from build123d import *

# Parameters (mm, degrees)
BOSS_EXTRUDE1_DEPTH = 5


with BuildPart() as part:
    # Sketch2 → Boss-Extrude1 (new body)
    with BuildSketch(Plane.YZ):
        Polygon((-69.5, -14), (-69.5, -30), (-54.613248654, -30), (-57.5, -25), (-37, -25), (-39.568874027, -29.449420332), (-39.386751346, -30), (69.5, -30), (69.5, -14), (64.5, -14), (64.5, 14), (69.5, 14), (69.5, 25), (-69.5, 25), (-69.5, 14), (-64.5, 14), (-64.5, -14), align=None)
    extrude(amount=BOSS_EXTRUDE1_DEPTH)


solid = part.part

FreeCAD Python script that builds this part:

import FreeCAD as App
import Part
import Sketcher

V = App.Vector
Q = App.Units.Quantity

doc = App.newDocument("Part")
body = doc.addObject("PartDesign::Body", "Body")

# Sketch on YZ plane
sketch1 = body.newObject("Sketcher::SketchObject", "Sketch")
sketch1.AttachmentSupport = (doc.getObject("YZ_Plane"), [""])
sketch1.MapMode = "FlatFace"
sketch1.addGeometry(Part.LineSegment(V(-69.5, -14, 0), V(-69.5, -30, 0)), False)
sketch1.addGeometry(Part.LineSegment(V(-69.5, -30, 0), V(-54.613249, -30, 0)), False)
sketch1.addGeometry(Part.LineSegment(V(-54.613249, -30, 0), V(-57.5, -25, 0)), False)
sketch1.addGeometry(Part.LineSegment(V(-57.5, -25, 0), V(-37, -25, 0)), False)
sketch1.addGeometry(Part.LineSegment(V(-37, -25, 0), V(-39.568874, -29.44942, 0)), False)
sketch1.addGeometry(Part.LineSegment(V(-39.568874, -29.44942, 0), V(-39.386751, -30, 0)), False)
sketch1.addGeometry(Part.LineSegment(V(-39.386751, -30, 0), V(69.5, -30, 0)), False)
sketch1.addGeometry(Part.LineSegment(V(69.5, -30, 0), V(69.5, -14, 0)), False)
sketch1.addGeometry(Part.LineSegment(V(69.5, -14, 0), V(64.5, -14, 0)), False)
sketch1.addGeometry(Part.LineSegment(V(64.5, -14, 0), V(64.5, 14, 0)), False)
sketch1.addGeometry(Part.LineSegment(V(64.5, 14, 0), V(69.5, 14, 0)), False)
sketch1.addGeometry(Part.LineSegment(V(69.5, 14, 0), V(69.5, 25, 0)), False)
sketch1.addGeometry(Part.LineSegment(V(69.5, 25, 0), V(-69.5, 25, 0)), False)
sketch1.addGeometry(Part.LineSegment(V(-69.5, 25, 0), V(-69.5, 14, 0)), False)
sketch1.addGeometry(Part.LineSegment(V(-69.5, 14, 0), V(-64.5, 14, 0)), False)
sketch1.addGeometry(Part.LineSegment(V(-64.5, 14, 0), V(-64.5, -14, 0)), False)
sketch1.addGeometry(Part.LineSegment(V(-64.5, -14, 0), V(-69.5, -14, 0)), False)
sketch1.addConstraint(Sketcher.Constraint("Coincident", 0, 2, 1, 1))
sketch1.addConstraint(Sketcher.Constraint("Coincident", 1, 2, 2, 1))
sketch1.addConstraint(Sketcher.Constraint("Coincident", 2, 2, 3, 1))
sketch1.addConstraint(Sketcher.Constraint("Coincident", 3, 2, 4, 1))
sketch1.addConstraint(Sketcher.Constraint("Coincident", 4, 2, 5, 1))
sketch1.addConstraint(Sketcher.Constraint("Coincident", 5, 2, 6, 1))
sketch1.addConstraint(Sketcher.Constraint("Coincident", 6, 2, 7, 1))
sketch1.addConstraint(Sketcher.Constraint("Coincident", 7, 2, 8, 1))
sketch1.addConstraint(Sketcher.Constraint("Coincident", 8, 2, 9, 1))
sketch1.addConstraint(Sketcher.Constraint("Coincident", 9, 2, 10, 1))
sketch1.addConstraint(Sketcher.Constraint("Coincident", 10, 2, 11, 1))
sketch1.addConstraint(Sketcher.Constraint("Coincident", 11, 2, 12, 1))
sketch1.addConstraint(Sketcher.Constraint("Coincident", 12, 2, 13, 1))
sketch1.addConstraint(Sketcher.Constraint("Coincident", 13, 2, 14, 1))
sketch1.addConstraint(Sketcher.Constraint("Coincident", 14, 2, 15, 1))
sketch1.addConstraint(Sketcher.Constraint("Coincident", 15, 2, 16, 1))
sketch1.addConstraint(Sketcher.Constraint("Coincident", 16, 2, 0, 1))
sketch1.addConstraint(Sketcher.Constraint("Vertical", 0))
sketch1.addConstraint(Sketcher.Constraint("Horizontal", 1))
sketch1.addConstraint(Sketcher.Constraint("Horizontal", 3))
sketch1.addConstraint(Sketcher.Constraint("Horizontal", 6))
sketch1.addConstraint(Sketcher.Constraint("Vertical", 7))
sketch1.addConstraint(Sketcher.Constraint("Horizontal", 8))
sketch1.addConstraint(Sketcher.Constraint("Vertical", 9))
sketch1.addConstraint(Sketcher.Constraint("Horizontal", 10))
sketch1.addConstraint(Sketcher.Constraint("Vertical", 11))
sketch1.addConstraint(Sketcher.Constraint("Horizontal", 12))
sketch1.addConstraint(Sketcher.Constraint("Vertical", 13))
sketch1.addConstraint(Sketcher.Constraint("Horizontal", 14))
sketch1.addConstraint(Sketcher.Constraint("Vertical", 15))
sketch1.addConstraint(Sketcher.Constraint("Horizontal", 16))
sketch1.addConstraint(Sketcher.Constraint("Symmetric", 7, 2, 13, 2, -1, 1))
sketch1.addConstraint(Sketcher.Constraint("Symmetric", 9, 2, 15, 2, -1, 1))
sketch1.addConstraint(Sketcher.Constraint("Symmetric", 0, 2, 6, 2, -2))
sketch1.addConstraint(Sketcher.Constraint("Symmetric", 10, 2, 13, 2, -2))
sketch1.addConstraint(Sketcher.Constraint("DistanceX", 8, 2, 8, 1, 5.0))
sketch1.addConstraint(Sketcher.Constraint("DistanceX", 12, 2, 12, 1, 139.0))
sketch1.addConstraint(Sketcher.Constraint("DistanceY", 0, 2, 0, 1, 16.0))
sketch1.addConstraint(Sketcher.Constraint("DistanceY", 9, 1, 9, 2, 28.0))
sketch1.addConstraint(Sketcher.Constraint("DistanceY", 11, 1, 11, 2, 11.0))
sketch1.addConstraint(Sketcher.Constraint("Angle", 2, Q("120 deg")))
sketch1.addConstraint(Sketcher.Constraint("Angle", 4, Q("-120 deg")))
sketch1.addConstraint(Sketcher.Constraint("DistanceX", 3, 1, 3, 2, 20.5))
sketch1.addConstraint(Sketcher.Constraint("DistanceY", 2, 2, -1, 1, 25.0))
sketch1.addConstraint(Sketcher.Constraint("DistanceX", 3, 2, -1, 1, 37.0))
sketch1.addConstraint(Sketcher.Constraint("DistanceX", 6, 1, 6, 2, 108.886751))
sketch1.addConstraint(Sketcher.Constraint("Distance", 4, 5.137748))
pad1 = body.newObject("PartDesign::Pad", "Pad")
pad1.Profile = sketch1
pad1.Length = 5

doc.recompute()
